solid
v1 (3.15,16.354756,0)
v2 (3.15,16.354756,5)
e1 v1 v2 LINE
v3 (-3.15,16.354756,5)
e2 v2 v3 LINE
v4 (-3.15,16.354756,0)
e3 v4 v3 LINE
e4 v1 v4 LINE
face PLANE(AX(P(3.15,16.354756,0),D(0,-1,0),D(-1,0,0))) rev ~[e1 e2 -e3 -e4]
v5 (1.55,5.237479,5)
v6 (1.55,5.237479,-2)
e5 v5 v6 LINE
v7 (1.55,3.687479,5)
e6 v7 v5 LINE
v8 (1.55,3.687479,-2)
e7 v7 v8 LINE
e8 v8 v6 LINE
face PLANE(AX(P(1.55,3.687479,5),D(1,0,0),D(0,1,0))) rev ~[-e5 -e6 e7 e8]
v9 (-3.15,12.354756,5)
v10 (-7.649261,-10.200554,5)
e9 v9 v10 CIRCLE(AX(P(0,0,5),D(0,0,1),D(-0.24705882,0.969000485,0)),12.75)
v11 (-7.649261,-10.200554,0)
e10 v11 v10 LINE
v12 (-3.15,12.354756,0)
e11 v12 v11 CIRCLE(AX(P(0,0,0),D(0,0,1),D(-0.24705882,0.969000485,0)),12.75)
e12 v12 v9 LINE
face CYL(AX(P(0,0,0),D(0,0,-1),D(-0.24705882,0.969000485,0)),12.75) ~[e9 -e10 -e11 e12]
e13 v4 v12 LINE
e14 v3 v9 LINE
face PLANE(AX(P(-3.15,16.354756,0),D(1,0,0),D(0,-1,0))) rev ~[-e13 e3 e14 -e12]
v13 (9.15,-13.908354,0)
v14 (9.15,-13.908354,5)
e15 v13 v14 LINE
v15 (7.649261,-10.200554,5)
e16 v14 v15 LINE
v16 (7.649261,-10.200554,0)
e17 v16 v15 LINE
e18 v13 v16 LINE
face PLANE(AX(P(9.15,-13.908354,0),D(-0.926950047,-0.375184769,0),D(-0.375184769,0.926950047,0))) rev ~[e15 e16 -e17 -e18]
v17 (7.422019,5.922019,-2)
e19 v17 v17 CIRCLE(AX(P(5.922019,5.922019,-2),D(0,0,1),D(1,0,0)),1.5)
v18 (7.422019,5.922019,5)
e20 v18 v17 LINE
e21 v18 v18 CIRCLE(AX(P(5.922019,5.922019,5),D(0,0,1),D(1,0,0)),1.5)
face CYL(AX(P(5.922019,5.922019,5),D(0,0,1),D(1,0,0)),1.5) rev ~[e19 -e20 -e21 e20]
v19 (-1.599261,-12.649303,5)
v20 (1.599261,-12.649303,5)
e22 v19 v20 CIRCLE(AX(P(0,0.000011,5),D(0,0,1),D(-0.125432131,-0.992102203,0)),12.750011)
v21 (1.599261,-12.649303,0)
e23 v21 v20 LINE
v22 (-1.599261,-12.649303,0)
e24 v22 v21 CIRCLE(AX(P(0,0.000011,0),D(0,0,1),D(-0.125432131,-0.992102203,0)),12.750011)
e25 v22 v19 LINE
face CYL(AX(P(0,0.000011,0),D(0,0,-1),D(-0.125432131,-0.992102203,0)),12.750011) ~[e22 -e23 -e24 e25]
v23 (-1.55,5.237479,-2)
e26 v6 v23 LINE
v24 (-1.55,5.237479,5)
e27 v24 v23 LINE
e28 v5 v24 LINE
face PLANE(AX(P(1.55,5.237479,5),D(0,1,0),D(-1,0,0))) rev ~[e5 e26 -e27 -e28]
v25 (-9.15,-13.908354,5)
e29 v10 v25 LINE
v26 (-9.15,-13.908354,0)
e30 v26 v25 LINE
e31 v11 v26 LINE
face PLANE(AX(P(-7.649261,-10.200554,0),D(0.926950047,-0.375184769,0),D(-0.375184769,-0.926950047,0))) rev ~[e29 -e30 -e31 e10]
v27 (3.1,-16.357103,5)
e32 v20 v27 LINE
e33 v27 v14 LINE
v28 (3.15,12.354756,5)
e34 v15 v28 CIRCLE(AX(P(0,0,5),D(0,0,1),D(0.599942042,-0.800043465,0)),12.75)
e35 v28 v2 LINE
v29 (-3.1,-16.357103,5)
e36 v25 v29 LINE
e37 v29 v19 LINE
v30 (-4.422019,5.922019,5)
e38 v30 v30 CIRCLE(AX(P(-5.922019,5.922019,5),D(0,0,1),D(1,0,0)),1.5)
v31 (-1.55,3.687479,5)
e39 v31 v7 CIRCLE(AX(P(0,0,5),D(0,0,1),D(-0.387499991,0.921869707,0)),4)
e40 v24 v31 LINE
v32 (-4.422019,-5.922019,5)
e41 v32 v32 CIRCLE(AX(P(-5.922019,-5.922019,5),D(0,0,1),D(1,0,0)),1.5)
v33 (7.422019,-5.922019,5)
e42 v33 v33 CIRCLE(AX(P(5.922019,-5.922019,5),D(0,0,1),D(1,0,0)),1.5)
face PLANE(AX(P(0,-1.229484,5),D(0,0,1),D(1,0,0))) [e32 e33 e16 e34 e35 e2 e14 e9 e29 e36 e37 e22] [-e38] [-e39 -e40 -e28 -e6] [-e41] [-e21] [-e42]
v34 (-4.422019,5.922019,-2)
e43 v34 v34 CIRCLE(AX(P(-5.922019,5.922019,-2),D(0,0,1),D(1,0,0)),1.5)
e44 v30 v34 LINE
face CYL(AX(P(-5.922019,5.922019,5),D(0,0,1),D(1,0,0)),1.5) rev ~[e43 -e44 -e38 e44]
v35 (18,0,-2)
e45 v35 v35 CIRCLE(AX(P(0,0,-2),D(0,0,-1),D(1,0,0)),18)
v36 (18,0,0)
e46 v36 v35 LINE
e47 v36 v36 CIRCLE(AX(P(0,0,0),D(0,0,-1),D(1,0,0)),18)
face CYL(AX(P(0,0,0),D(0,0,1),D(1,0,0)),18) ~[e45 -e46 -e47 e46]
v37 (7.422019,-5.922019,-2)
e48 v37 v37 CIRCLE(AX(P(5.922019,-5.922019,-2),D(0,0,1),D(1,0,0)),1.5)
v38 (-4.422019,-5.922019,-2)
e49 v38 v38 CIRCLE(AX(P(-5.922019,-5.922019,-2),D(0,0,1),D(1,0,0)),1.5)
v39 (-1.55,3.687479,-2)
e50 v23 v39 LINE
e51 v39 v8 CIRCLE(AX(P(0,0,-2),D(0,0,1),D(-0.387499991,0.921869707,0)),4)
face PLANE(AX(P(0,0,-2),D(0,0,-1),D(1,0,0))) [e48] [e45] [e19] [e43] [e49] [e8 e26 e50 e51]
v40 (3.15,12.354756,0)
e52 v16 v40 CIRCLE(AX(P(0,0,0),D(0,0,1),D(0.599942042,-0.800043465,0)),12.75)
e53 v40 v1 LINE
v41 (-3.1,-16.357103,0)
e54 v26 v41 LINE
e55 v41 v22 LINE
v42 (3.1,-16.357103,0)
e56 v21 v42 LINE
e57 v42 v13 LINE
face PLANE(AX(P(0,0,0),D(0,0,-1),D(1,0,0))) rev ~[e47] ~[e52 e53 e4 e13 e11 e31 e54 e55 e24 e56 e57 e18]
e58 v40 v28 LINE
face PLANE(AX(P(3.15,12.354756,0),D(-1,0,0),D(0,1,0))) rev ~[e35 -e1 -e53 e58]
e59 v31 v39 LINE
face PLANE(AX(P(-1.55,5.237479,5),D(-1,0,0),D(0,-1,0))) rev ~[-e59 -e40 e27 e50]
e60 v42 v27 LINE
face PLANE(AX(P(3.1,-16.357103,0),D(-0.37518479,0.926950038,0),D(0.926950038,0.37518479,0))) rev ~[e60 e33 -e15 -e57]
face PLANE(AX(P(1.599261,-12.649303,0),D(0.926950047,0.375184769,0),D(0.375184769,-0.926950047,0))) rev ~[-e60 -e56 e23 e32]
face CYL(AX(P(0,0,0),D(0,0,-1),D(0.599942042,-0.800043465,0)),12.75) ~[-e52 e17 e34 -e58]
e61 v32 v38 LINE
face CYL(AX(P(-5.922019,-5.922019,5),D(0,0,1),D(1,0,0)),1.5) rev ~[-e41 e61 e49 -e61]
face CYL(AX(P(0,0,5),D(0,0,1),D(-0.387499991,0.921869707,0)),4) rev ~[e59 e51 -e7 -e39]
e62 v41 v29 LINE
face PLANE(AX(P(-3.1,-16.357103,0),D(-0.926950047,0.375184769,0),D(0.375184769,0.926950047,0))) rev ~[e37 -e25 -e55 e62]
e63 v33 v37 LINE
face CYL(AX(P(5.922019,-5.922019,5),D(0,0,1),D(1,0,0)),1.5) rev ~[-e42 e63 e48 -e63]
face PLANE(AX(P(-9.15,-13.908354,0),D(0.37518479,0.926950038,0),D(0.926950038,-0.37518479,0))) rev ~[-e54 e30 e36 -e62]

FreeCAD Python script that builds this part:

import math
import FreeCAD as App
import Part
import Sketcher
Q = App.Units.Quantity

doc = App.newDocument("Part")
body = doc.addObject("PartDesign::Body", "Body")

sketch1 = body.newObject("Sketcher::SketchObject", "Sketch")
sketch1.AttachmentSupport = (doc.getObject("XY_Plane"), [""])
sketch1.MapMode = "FlatFace"
sketch1.addGeometry([
    Part.LineSegment(App.Vector(9.2, -13.9, 0), App.Vector(7.6, -10.2, 0)),
    Part.ArcOfCircle(Part.Circle(App.Vector(0, 0, 0), App.Vector(0, 0, 1), 12.7), math.radians(-53), math.radians(76)),
    Part.LineSegment(App.Vector(3.1, 12.4, 0), App.Vector(3.1, 16.4, 0)),
    Part.LineSegment(App.Vector(3.1, 16.4, 0), App.Vector(-3.1, 16.4, 0)),
    Part.LineSegment(App.Vector(-3.1, 16.4, 0), App.Vector(-3.1, 12.4, 0)),
    Part.ArcOfCircle(Part.Circle(App.Vector(0, 0, 0), App.Vector(0, 0, 1), 12.7), math.radians(104), math.radians(233)),
    Part.LineSegment(App.Vector(-7.6, -10.2, 0), App.Vector(-9.2, -13.9, 0)),
    Part.LineSegment(App.Vector(-9.2, -13.9, 0), App.Vector(-3.1, -16.4, 0)),
    Part.LineSegment(App.Vector(-3.1, -16.4, 0), App.Vector(-1.6, -12.6, 0)),
    Part.ArcOfCircle(Part.Circle(App.Vector(0, 0, 0), App.Vector(0, 0, 1), 12.8), math.radians(-97.21), math.radians(-82.79)),
    Part.LineSegment(App.Vector(1.6, -12.6, 0), App.Vector(3.1, -16.4, 0)),
    Part.LineSegment(App.Vector(3.1, -16.4, 0), App.Vector(9.2, -13.9, 0)),
], False)
sketch1.addConstraint([
    Sketcher.Constraint("Coincident", 0, 2, 1, 1),
    Sketcher.Constraint("Coincident", 1, 2, 2, 1),
    Sketcher.Constraint("Coincident", 2, 2, 3, 1),
    Sketcher.Constraint("Coincident", 3, 2, 4, 1),
    Sketcher.Constraint("Coincident", 4, 2, 5, 1),
    Sketcher.Constraint("Coincident", 5, 2, 6, 1),
    Sketcher.Constraint("Coincident", 6, 2, 7, 1),
    Sketcher.Constraint("Coincident", 7, 2, 8, 1),
    Sketcher.Constraint("Coincident", 8, 2, 9, 1),
    Sketcher.Constraint("Coincident", 9, 2, 10, 1),
    Sketcher.Constraint("Coincident", 10, 2, 11, 1),
    Sketcher.Constraint("Coincident", 11, 2, 0, 1),
    Sketcher.Constraint("Vertical", 2),
    Sketcher.Constraint("Horizontal", 3),
    Sketcher.Constraint("Vertical", 4),
    Sketcher.Constraint("Coincident", 1, 3, -1, 1),
    Sketcher.Constraint("Coincident", 5, 3, -1, 1),
    Sketcher.Constraint("Equal", 1, 5),
    Sketcher.Constraint("Symmetric", 8, 2, 9, 2, -2),
    Sketcher.Constraint("Symmetric", 7, 2, 10, 2, -2),
    Sketcher.Constraint("Symmetric", 6, 2, 11, 2, -2),
    Sketcher.Constraint("Perpendicular", 6, 7),
    Sketcher.Constraint("Perpendicular", 7, 8),
    Sketcher.Constraint("Parallel", 0, 10),
    Sketcher.Constraint("Horizontal", 1, 2, 4, 2),
    Sketcher.Constraint("Equal", 6, 8),
    Sketcher.Constraint("DistanceY", 2, 1, 2, 2, Q("4 mm")),
    Sketcher.Constraint("Radius", 1, Q("12.75 mm")),
    Sketcher.Constraint("Distance", 0, Q("4 mm")),
    Sketcher.Constraint("DistanceX", 3, 2, 3, 1, Q("6.3 mm")),
    Sketcher.Constraint("DistanceX", 7, 2, -1, 1, Q("3.1 mm")),
    Sketcher.Constraint("DistanceX", 6, 2, -1, 1, Q("9.15 mm")),
    Sketcher.Constraint("Radius", 9, Q("12.750011 mm")),
    Sketcher.Constraint("DistanceY", 6, 2, 5, 2, Q("3.7078 mm")),
])
pad1 = body.newObject("PartDesign::Pad", "Pad")
pad1.Profile = sketch1
pad1.Length = 5

sketch2 = body.newObject("Sketcher::SketchObject", "Sketch001")
sketch2.AttachmentSupport = (doc.getObject("XY_Plane"), [""])
sketch2.MapMode = "FlatFace"
sketch2.addGeometry(Part.Circle(App.Vector(0, 0, 0), App.Vector(0, 0, 1), 18), False)
sketch2.addConstraint([
    Sketcher.Constraint("Coincident", 0, 3, -1, 1),
    Sketcher.Constraint("Diameter", 0, Q("36 mm")),
])
pad2 = body.newObject("PartDesign::Pad", "Pad001")
pad2.Profile = sketch2
pad2.Length = 2
pad2.Reversed = True

sketch3 = body.newObject("Sketcher::SketchObject", "Sketch002")
sketch3.AttachmentSupport = (doc.getObject("XY_Plane"), [""])
sketch3.MapMode = "FlatFace"
sketch3.AttachmentOffset = App.Placement(App.Vector(0, 0, 5), App.Rotation())
sketch3.addGeometry([
    Part.LineSegment(App.Vector(-1.6, 5.2, 0), App.Vector(-1.6, 3.7, 0)),
    Part.ArcOfCircle(Part.Circle(App.Vector(0, 0, 0), App.Vector(0, 0, 1), 4), math.radians(113), math.radians(427)),
    Part.LineSegment(App.Vector(1.6, 3.7, 0), App.Vector(1.6, 5.2, 0)),
    Part.LineSegment(App.Vector(1.6, 5.2, 0), App.Vector(-1.6, 5.2, 0)),
    Part.Circle(App.Vector(-5.9, 5.9, 0), App.Vector(0, 0, 1), 1.5),
    Part.Circle(App.Vector(-5.9, -5.9, 0), App.Vector(0, 0, 1), 1.5),
    Part.Circle(App.Vector(5.9, -5.9, 0), App.Vector(0, 0, 1), 1.5),
    Part.Circle(App.Vector(5.9, 5.9, 0), App.Vector(0, 0, 1), 1.5),
], False)
sketch3.addConstraint([
    Sketcher.Constraint("Coincident", 0, 2, 1, 1),
    Sketcher.Constraint("Coincident", 1, 2, 2, 1),
    Sketcher.Constraint("Coincident", 2, 2, 3, 1),
    Sketcher.Constraint("Coincident", 3, 2, 0, 1),
    Sketcher.Constraint("Vertical", 0),
    Sketcher.Constraint("Vertical", 2),
    Sketcher.Constraint("Horizontal", 3),
    Sketcher.Constraint("Coincident", 1, 3, -1, 1),
    Sketcher.Constraint("Equal", 4, 5),
    Sketcher.Constraint("Equal", 5, 6),
    Sketcher.Constraint("Equal", 6, 7),
    Sketcher.Constraint("Symmetric", 4, 3, 6, 3, -1, 1),
    Sketcher.Constraint("Symmetric", 5, 3, 7, 3, -1, 1),
    Sketcher.Constraint("Symmetric", 5, 3, 6, 3, -2),
    Sketcher.Constraint("Horizontal", 0, 2, 1, 2),
    Sketcher.Constraint("Diameter", 4, Q("3 mm")),
    Sketcher.Constraint("Radius", 1, Q("4 mm")),
    Sketcher.Constraint("DistanceX", 3, 2, 3, 1, Q("3.1 mm")),
    Sketcher.Constraint("DistanceY", 0, 2, 0, 1, Q("1.55 mm")),
    Sketcher.Constraint("DistanceX", 4, 3, -1, 1, Q("5.922019 mm")),
    Sketcher.Constraint("DistanceY", -1, 1, 4, 3, Q("5.922019 mm")),
])
pocket1 = body.newObject("PartDesign::Pocket", "Pocket")
pocket1.Profile = sketch3
pocket1.Type = "ThroughAll"

doc.recompute()
